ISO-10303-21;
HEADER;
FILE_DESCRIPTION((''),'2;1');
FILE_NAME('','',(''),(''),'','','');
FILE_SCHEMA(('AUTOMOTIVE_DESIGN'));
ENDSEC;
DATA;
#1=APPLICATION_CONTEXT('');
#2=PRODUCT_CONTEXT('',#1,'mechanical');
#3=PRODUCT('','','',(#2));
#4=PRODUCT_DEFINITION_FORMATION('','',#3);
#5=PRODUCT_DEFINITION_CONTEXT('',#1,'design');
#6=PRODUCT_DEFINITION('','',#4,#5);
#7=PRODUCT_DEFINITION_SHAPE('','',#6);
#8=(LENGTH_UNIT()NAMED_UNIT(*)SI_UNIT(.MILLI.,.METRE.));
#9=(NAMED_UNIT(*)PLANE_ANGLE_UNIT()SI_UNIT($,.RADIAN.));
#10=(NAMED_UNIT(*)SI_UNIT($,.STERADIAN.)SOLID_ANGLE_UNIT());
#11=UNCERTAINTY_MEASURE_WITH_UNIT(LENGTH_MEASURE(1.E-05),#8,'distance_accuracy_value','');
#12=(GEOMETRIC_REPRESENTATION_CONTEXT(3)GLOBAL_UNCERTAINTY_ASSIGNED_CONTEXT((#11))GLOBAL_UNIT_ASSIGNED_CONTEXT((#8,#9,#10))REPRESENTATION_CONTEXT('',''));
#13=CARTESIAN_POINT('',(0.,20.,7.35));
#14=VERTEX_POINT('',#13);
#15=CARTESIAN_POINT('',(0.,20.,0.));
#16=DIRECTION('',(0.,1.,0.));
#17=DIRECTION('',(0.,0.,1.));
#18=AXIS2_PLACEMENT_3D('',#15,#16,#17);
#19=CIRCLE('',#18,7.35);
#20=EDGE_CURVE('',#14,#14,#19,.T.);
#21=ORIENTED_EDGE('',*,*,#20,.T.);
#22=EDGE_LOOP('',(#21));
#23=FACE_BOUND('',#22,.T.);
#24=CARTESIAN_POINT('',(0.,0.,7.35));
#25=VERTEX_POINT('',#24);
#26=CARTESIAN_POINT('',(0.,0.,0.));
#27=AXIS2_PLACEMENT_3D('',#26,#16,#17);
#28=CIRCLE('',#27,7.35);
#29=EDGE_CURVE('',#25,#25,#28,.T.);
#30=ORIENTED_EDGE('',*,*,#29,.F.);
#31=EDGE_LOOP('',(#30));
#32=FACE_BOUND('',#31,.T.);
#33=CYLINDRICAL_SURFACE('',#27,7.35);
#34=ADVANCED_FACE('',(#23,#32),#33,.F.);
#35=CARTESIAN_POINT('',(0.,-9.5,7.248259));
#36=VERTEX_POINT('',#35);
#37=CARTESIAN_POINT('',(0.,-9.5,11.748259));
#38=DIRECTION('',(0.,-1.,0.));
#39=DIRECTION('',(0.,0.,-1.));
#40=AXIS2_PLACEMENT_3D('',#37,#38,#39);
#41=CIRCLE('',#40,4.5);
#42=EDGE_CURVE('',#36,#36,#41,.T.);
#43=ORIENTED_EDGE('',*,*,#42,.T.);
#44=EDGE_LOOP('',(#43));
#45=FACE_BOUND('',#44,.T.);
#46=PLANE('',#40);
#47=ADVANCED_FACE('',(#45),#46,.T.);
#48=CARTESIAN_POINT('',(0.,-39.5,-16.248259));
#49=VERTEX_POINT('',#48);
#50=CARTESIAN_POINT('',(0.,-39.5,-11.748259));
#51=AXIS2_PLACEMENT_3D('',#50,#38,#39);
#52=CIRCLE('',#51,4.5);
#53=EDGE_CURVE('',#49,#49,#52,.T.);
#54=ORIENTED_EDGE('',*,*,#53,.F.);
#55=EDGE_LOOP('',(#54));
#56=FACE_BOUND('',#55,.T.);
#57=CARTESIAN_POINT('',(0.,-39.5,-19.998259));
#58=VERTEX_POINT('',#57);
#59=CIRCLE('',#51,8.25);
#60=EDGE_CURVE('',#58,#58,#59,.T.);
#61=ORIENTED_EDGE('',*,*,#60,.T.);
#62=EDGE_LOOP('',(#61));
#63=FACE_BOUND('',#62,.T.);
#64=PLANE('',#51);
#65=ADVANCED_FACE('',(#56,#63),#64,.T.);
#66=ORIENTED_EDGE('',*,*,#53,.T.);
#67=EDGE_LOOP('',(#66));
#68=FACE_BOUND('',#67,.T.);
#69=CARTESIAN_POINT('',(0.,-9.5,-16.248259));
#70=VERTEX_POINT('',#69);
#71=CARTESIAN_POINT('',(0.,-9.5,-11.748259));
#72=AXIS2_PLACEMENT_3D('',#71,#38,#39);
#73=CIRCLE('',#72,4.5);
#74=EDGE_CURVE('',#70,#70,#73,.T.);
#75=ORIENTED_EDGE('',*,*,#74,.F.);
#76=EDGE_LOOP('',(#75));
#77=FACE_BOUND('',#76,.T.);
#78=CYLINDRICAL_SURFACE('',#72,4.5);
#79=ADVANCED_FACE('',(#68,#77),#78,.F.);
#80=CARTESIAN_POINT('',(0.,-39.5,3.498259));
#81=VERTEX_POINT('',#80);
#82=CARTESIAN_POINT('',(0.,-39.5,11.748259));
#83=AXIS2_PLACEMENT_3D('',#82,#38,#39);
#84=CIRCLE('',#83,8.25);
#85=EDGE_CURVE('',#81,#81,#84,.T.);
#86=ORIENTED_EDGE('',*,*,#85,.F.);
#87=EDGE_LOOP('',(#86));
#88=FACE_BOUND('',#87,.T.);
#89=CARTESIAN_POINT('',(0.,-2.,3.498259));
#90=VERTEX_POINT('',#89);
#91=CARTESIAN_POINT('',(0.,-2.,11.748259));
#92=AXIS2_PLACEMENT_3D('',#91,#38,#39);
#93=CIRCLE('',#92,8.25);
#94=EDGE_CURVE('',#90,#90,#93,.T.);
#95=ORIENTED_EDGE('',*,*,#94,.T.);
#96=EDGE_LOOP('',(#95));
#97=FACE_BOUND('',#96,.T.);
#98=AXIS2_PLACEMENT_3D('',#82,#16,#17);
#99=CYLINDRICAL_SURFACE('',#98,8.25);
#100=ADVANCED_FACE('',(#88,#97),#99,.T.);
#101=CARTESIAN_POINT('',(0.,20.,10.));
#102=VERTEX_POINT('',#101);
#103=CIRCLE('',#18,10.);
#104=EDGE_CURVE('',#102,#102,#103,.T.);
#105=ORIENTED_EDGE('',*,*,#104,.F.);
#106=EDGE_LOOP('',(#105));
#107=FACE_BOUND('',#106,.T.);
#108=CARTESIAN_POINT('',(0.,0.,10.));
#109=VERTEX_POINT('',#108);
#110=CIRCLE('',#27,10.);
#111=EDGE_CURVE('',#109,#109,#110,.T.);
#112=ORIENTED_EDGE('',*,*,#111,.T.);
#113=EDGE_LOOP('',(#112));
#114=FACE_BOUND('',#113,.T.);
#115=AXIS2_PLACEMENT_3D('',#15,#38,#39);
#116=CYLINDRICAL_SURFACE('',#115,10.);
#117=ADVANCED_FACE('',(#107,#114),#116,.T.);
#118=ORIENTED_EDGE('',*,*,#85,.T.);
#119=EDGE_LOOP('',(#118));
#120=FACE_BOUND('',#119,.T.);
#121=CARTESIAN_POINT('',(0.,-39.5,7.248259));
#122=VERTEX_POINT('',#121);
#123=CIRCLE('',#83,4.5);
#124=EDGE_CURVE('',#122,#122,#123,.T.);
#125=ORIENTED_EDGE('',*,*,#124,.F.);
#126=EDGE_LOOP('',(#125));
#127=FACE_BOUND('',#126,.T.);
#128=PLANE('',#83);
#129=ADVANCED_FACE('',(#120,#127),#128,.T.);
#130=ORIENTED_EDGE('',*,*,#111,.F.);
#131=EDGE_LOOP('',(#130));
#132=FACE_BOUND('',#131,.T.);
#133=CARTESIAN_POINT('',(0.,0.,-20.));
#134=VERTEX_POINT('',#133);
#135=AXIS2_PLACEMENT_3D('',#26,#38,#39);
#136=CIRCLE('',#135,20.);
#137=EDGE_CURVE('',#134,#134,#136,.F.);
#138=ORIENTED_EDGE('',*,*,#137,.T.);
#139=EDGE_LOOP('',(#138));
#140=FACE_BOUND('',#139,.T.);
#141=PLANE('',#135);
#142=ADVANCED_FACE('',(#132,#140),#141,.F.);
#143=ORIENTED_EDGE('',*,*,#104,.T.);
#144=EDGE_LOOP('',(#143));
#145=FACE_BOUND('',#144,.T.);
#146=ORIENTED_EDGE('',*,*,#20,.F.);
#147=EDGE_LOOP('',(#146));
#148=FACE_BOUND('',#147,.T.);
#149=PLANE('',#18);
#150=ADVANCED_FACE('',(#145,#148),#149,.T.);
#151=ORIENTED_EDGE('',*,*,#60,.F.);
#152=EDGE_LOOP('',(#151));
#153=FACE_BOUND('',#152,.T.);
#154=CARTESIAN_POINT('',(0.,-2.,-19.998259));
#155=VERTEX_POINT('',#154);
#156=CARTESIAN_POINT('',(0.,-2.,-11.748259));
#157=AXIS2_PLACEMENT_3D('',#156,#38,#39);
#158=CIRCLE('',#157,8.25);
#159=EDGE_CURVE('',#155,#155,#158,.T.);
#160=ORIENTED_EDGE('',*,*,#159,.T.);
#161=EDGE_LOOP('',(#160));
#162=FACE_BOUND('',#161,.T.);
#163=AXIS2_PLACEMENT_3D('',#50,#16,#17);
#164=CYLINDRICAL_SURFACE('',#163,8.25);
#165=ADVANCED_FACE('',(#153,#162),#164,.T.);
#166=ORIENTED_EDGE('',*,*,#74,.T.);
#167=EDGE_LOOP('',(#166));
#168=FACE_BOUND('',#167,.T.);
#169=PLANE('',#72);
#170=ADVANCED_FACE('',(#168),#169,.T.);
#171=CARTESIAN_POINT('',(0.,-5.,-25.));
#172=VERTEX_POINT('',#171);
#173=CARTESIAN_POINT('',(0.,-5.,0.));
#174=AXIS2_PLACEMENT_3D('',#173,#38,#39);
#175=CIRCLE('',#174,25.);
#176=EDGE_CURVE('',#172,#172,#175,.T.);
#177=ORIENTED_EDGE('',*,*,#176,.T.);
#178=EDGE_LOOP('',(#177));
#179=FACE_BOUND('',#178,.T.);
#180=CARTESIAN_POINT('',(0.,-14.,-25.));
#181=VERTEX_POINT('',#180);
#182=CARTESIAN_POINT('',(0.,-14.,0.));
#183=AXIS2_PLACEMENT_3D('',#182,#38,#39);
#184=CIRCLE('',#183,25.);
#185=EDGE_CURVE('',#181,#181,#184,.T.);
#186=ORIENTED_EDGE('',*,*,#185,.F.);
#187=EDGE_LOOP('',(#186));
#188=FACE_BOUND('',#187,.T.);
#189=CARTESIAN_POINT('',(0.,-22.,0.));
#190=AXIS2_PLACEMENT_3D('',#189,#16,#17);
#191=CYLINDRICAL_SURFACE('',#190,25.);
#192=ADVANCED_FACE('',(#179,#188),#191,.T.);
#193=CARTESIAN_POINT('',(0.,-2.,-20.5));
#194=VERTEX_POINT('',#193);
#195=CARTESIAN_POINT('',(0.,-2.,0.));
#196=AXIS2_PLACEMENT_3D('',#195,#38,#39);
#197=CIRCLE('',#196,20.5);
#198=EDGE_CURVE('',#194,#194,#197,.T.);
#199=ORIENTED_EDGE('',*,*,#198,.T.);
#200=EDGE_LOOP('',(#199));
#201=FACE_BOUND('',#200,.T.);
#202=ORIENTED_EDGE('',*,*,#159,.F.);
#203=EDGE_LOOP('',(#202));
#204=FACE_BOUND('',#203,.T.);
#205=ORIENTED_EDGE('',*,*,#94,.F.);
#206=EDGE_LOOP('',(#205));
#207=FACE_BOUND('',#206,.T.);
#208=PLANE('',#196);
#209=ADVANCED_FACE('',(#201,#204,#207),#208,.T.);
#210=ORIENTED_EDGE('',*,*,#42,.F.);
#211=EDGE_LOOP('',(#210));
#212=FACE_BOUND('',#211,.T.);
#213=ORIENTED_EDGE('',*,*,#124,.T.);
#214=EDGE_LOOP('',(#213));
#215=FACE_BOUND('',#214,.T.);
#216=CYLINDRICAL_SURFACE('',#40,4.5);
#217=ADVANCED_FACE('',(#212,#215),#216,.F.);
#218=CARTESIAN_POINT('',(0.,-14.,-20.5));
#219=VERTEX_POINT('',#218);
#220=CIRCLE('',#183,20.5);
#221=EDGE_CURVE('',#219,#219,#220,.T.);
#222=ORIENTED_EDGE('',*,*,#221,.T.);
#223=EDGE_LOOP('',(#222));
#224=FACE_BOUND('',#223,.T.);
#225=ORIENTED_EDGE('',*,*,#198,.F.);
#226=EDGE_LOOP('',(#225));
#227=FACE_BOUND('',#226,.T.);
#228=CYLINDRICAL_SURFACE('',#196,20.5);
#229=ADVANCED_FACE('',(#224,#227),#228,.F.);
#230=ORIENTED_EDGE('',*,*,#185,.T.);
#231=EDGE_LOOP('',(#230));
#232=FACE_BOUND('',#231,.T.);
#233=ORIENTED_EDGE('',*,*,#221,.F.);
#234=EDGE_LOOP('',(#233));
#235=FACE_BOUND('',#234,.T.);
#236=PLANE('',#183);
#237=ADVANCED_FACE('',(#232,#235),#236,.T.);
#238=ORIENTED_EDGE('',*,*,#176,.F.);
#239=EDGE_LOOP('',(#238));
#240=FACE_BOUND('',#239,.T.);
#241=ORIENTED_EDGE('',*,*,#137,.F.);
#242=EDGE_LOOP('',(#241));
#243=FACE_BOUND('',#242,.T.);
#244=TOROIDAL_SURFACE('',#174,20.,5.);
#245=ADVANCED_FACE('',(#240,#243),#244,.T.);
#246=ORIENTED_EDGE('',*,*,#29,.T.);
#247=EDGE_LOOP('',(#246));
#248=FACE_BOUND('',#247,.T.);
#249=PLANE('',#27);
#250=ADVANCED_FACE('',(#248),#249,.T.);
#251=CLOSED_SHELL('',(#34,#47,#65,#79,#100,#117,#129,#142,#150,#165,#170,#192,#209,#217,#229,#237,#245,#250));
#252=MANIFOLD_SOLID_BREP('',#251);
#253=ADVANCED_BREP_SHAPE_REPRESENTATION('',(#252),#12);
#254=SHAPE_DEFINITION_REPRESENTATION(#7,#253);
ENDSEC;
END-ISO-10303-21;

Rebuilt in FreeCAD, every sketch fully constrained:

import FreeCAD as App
import Part
import Sketcher


def edges_at(feature, points):
    """Names of the edges that pass closest to the given points."""
    edges = feature.Shape.Edges
    near = lambda p: min(range(len(edges)), key=lambda i: edges[i].distToShape(Part.Vertex(*p))[0])
    return sorted({f"Edge{near(p) + 1}" for p in points})

doc = App.newDocument("Part")
params = doc.addObject("Spreadsheet::Sheet", "Params")
for row, (alias, value) in enumerate([
    ("sketch1_diameter", "20 mm"),
    ("pad1_length", "20 mm"),
    ("sketch2_diameter", "50 mm"),
    ("pad2_length", "22 mm"),
    ("sketch3_diameter", "41 mm"),
    ("pocket1_length", "20 mm"),
    ("fillet_radius", "5 mm"),
    ("sketch4_diameter", "14.7 mm"),
    ("pocket2_length", "20 mm"),
    ("sketch5_diameter", "16.5 mm"),
    ("pad3_length", "37.5 mm"),
    ("sketch6_diameter", "9 mm"),
    ("pocket3_length", "30 mm"),
    ("sketch7_diameter", "50 mm"),
    ("sketch7_diameter2", "41 mm"),
    ("pocket4_length", "8 mm"),
], start=1):
    params.set(f"A{row}", alias)
    params.set(f"B{row}", "=" + value)
    params.setAlias(f"B{row}", alias)

body = doc.addObject("PartDesign::Body", "Body")

# Sketch on XZ plane
sketch1 = doc.addObject("Sketcher::SketchObject", "Sketch")
body.addObject(sketch1)
sketch1.AttachmentSupport = (doc.XZ_Plane, [""])
sketch1.MapMode = "FlatFace"
sketch1.addGeometry(Part.Circle(App.Vector(0, 0, 0), App.Vector(0, 0, 1), 10), False)
sketch1.addConstraint([
    Sketcher.Constraint("Coincident", 0, 3, -1, 1),
    Sketcher.Constraint("Diameter", 0, 20.0),
])
sketch1.setExpression("Constraints[1]", "Params.sketch1_diameter")
pad1 = doc.addObject("PartDesign::Pad", "Pad")
body.addObject(pad1)
pad1.Profile = sketch1
pad1.setExpression("Length", "Params.pad1_length")
pad1.Reversed = True

# Sketch on XZ plane
sketch2 = doc.addObject("Sketcher::SketchObject", "Sketch001")
body.addObject(sketch2)
sketch2.AttachmentSupport = (doc.XZ_Plane, [""])
sketch2.MapMode = "FlatFace"
sketch2.addGeometry(Part.Circle(App.Vector(0, 0, 0), App.Vector(0, 0, 1), 25), False)
sketch2.addConstraint([
    Sketcher.Constraint("Coincident", 0, 3, -1, 1),
    Sketcher.Constraint("Diameter", 0, 50.0),
])
sketch2.setExpression("Constraints[1]", "Params.sketch2_diameter")
pad2 = doc.addObject("PartDesign::Pad", "Pad001")
body.addObject(pad2)
pad2.Profile = sketch2
pad2.setExpression("Length", "Params.pad2_length")

# Sketch on XZ plane
sketch3 = doc.addObject("Sketcher::SketchObject", "Sketch002")
body.addObject(sketch3)
sketch3.AttachmentSupport = (doc.XZ_Plane, [""])
sketch3.MapMode = "FlatFace"
sketch3.AttachmentOffset = App.Placement(App.Vector(0, 0, 22), App.Rotation())
sketch3.addGeometry(Part.Circle(App.Vector(0, 0, 0), App.Vector(0, 0, 1), 20.5), False)
sketch3.addConstraint([
    Sketcher.Constraint("Coincident", 0, 3, -1, 1),
    Sketcher.Constraint("Diameter", 0, 41.0),
])
sketch3.setExpression("Constraints[1]", "Params.sketch3_diameter")
pocket1 = doc.addObject("PartDesign::Pocket", "Pocket")
body.addObject(pocket1)
pocket1.Profile = sketch3
pocket1.setExpression("Length", "Params.pocket1_length")
doc.recompute()

fillet = doc.addObject("PartDesign::Fillet", "Fillet")
body.addObject(fillet)
fillet.Base = (pocket1, edges_at(pocket1, [(0, 0, 25)]))
fillet.setExpression("Radius", "Params.fillet_radius")

# Sketch on XZ plane
sketch4 = doc.addObject("Sketcher::SketchObject", "Sketch003")
body.addObject(sketch4)
sketch4.AttachmentSupport = (doc.XZ_Plane, [""])
sketch4.MapMode = "FlatFace"
sketch4.AttachmentOffset = App.Placement(App.Vector(0, 0, -20), App.Rotation())
sketch4.addGeometry(Part.Circle(App.Vector(0, 0, 0), App.Vector(0, 0, 1), 7.35), False)
sketch4.addConstraint([
    Sketcher.Constraint("Coincident", 0, 3, -1, 1),
    Sketcher.Constraint("Diameter", 0, 14.7),
])
sketch4.setExpression("Constraints[1]", "Params.sketch4_diameter")
pocket2 = doc.addObject("PartDesign::Pocket", "Pocket001")
body.addObject(pocket2)
pocket2.Profile = sketch4
pocket2.setExpression("Length", "Params.pocket2_length")
pocket2.Reversed = True

# Sketch on XZ plane
sketch5 = doc.addObject("Sketcher::SketchObject", "Sketch004")
body.addObject(sketch5)
sketch5.AttachmentSupport = (doc.XZ_Plane, [""])
sketch5.MapMode = "FlatFace"
sketch5.AttachmentOffset = App.Placement(App.Vector(0, 0, 2), App.Rotation())
sketch5.addGeometry([
    Part.Circle(App.Vector(0, 11.748259, 0), App.Vector(0, 0, 1), 8.25),
    Part.Circle(App.Vector(0, -11.748259, 0), App.Vector(0, 0, 1), 8.25),
], False)
sketch5.addConstraint([
    Sketcher.Constraint("Equal", 0, 1),
    Sketcher.Constraint("Symmetric", 0, 3, 1, 3, -1, 1),
    Sketcher.Constraint("PointOnObject", 0, 3, -2),
    Sketcher.Constraint("Diameter", 0, 16.5),
    Sketcher.Constraint("DistanceY", -1, 1, 0, 3, 11.748259),
])
sketch5.setExpression("Constraints[3]", "Params.sketch5_diameter")
pad3 = doc.addObject("PartDesign::Pad", "Pad002")
body.addObject(pad3)
pad3.Profile = sketch5
pad3.setExpression("Length", "Params.pad3_length")

# Sketch on XZ plane
sketch6 = doc.addObject("Sketcher::SketchObject", "Sketch005")
body.addObject(sketch6)
sketch6.AttachmentSupport = (doc.XZ_Plane, [""])
sketch6.MapMode = "FlatFace"
sketch6.AttachmentOffset = App.Placement(App.Vector(0, 0, 39.5), App.Rotation())
sketch6.addGeometry([
    Part.Circle(App.Vector(0, 11.748259, 0), App.Vector(0, 0, 1), 4.5),
    Part.Circle(App.Vector(0, -11.748259, 0), App.Vector(0, 0, 1), 4.5),
], False)
sketch6.addConstraint([
    Sketcher.Constraint("Equal", 0, 1),
    Sketcher.Constraint("Symmetric", 0, 3, 1, 3, -1, 1),
    Sketcher.Constraint("PointOnObject", 0, 3, -2),
    Sketcher.Constraint("Diameter", 0, 9.0),
    Sketcher.Constraint("DistanceY", -1, 1, 0, 3, 11.748259),
])
sketch6.setExpression("Constraints[3]", "Params.sketch6_diameter")
pocket3 = doc.addObject("PartDesign::Pocket", "Pocket002")
body.addObject(pocket3)
pocket3.Profile = sketch6
pocket3.setExpression("Length", "Params.pocket3_length")

# Sketch on XZ plane
sketch7 = doc.addObject("Sketcher::SketchObject", "Sketch006")
body.addObject(sketch7)
sketch7.AttachmentSupport = (doc.XZ_Plane, [""])
sketch7.MapMode = "FlatFace"
sketch7.AttachmentOffset = App.Placement(App.Vector(0, 0, 22), App.Rotation())
sketch7.addGeometry([
    Part.Circle(App.Vector(0, 0, 0), App.Vector(0, 0, 1), 25),
    Part.Circle(App.Vector(0, 0, 0), App.Vector(0, 0, 1), 20.5),
], False)
sketch7.addConstraint([
    Sketcher.Constraint("Coincident", 0, 3, -1, 1),
    Sketcher.Constraint("Coincident", 1, 3, -1, 1),
    Sketcher.Constraint("Diameter", 0, 50.0),
    Sketcher.Constraint("Diameter", 1, 41.0),
])
sketch7.setExpression("Constraints[2]", "Params.sketch7_diameter")
sketch7.setExpression("Constraints[3]", "Params.sketch7_diameter2")
pocket4 = doc.addObject("PartDesign::Pocket", "Pocket003")
body.addObject(pocket4)
pocket4.Profile = sketch7
pocket4.setExpression("Length", "Params.pocket4_length")

doc.recompute()
